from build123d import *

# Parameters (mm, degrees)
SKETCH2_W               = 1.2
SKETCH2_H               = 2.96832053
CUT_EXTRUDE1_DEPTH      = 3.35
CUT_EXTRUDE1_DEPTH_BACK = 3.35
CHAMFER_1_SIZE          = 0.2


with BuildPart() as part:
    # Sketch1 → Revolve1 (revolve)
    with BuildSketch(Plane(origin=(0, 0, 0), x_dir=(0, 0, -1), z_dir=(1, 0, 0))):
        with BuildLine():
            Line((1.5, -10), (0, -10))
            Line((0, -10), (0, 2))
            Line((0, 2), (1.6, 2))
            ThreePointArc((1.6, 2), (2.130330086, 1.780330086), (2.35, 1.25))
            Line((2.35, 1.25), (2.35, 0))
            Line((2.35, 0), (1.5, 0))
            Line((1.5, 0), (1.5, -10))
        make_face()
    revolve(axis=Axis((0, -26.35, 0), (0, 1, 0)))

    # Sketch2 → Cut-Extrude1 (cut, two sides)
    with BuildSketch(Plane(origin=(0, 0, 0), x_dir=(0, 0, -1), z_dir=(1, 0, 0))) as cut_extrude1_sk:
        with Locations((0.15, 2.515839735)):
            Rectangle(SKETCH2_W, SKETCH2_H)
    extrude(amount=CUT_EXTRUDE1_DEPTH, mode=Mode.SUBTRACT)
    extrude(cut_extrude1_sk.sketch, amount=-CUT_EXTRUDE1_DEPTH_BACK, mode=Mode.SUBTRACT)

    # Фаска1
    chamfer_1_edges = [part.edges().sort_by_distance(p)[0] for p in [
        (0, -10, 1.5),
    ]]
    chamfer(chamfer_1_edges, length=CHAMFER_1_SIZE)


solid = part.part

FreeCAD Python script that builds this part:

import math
import FreeCAD as App
import Part
import Sketcher

V = App.Vector
Q = App.Units.Quantity


def edges_at(feature, points):
    """Names of the edges that pass closest to the given points."""
    edges = feature.Shape.Edges
    near = lambda p: min(range(len(edges)), key=lambda i: edges[i].distToShape(Part.Vertex(*p))[0])
    return sorted({f"Edge{near(p) + 1}" for p in points})


def add_polygon(sketch, points):
    """Adds a closed chain of lines whose ends are joined by coincident constraints."""
    first, n = sketch.GeometryCount, len(points)
    for a, b in zip(points, points[1:] + points[:1]):
        sketch.addGeometry(Part.LineSegment(App.Vector(*a, 0), App.Vector(*b, 0)), False)
    for i in range(n):
        sketch.addConstraint(Sketcher.Constraint("Coincident", first + i, 2, first + (i + 1) % n, 1))

doc = App.newDocument("Part")
body = doc.addObject("PartDesign::Body", "Body")

# Sketch on YZ plane
sketch1 = body.newObject("Sketcher::SketchObject", "Sketch")
sketch1.AttachmentSupport = (doc.getObject("YZ_Plane"), [""])
sketch1.MapMode = "FlatFace"
sketch1.addGeometry([
    Part.LineSegment(V(-10, 0, 0), V(-10, -1.5, 0)),  # 0
    Part.LineSegment(V(-10, -1.5, 0), V(0, -1.5, 0)),  # 1
    Part.LineSegment(V(0, -1.5, 0), V(0, -2.35, 0)),  # 2
    Part.LineSegment(V(0, -2.35, 0), V(1.25, -2.35, 0)),  # 3
    Part.ArcOfCircle(Part.Circle(V(1.25, -1.6, 0), V(0, 0, 1), 0.75), math.radians(-90), math.radians(0)),  # 4
    Part.LineSegment(V(2, -1.6, 0), V(2, 0, 0)),  # 5
    Part.LineSegment(V(2, 0, 0), V(-10, 0, 0)),  # 6
], False)
sketch1.addConstraint([
    Sketcher.Constraint("Coincident", 0, 2, 1, 1),
    Sketcher.Constraint("Coincident", 1, 2, 2, 1),
    Sketcher.Constraint("Coincident", 2, 2, 3, 1),
    Sketcher.Constraint("Tangent", 3, 2, 4, 1),
    Sketcher.Constraint("Tangent", 4, 2, 5, 1),
    Sketcher.Constraint("Coincident", 5, 2, 6, 1),
    Sketcher.Constraint("Coincident", 6, 2, 0, 1),
    Sketcher.Constraint("Vertical", 0),
    Sketcher.Constraint("Horizontal", 1),
    Sketcher.Constraint("Vertical", 2),
    Sketcher.Constraint("Horizontal", 3),
    Sketcher.Constraint("Vertical", 5),
    Sketcher.Constraint("Horizontal", 6),
    Sketcher.Constraint("PointOnObject", 1, 2, -2),
    Sketcher.Constraint("PointOnObject", 5, 2, -1),
    Sketcher.Constraint("DistanceX", 1, 1, 1, 2, Q("10 mm")),
    Sketcher.Constraint("DistanceX", 6, 2, 6, 1, Q("12 mm")),
    Sketcher.Constraint("Radius", 4, Q("0.75 mm")),
    Sketcher.Constraint("DistanceY", 0, 2, 0, 1, Q("1.5 mm")),
    Sketcher.Constraint("DistanceY", 5, 1, 5, 2, Q("1.6 mm")),
])
revolution = body.newObject("PartDesign::Revolution", "Revolution")
revolution.Profile = sketch1
revolution.ReferenceAxis = (sketch1, ["H_Axis"])
revolution.Angle = 360

# Sketch on YZ plane
sketch2 = body.newObject("Sketcher::SketchObject", "Sketch001")
sketch2.AttachmentSupport = (doc.getObject("YZ_Plane"), [""])
sketch2.MapMode = "FlatFace"
add_polygon(sketch2, [(4, 0.45), (1.031679, 0.45), (1.031679, -0.75), (4, -0.75)])  # lines 0-3
sketch2.addConstraint([
    Sketcher.Constraint("Horizontal", 0),
    Sketcher.Constraint("Vertical", 1),
    Sketcher.Constraint("Horizontal", 2),
    Sketcher.Constraint("Vertical", 3),
    Sketcher.Constraint("DistanceY", 1, 2, 1, 1, Q("1.2 mm")),
    Sketcher.Constraint("DistanceX", -1, 1, 2, 2, Q("4 mm")),
    Sketcher.Constraint("DistanceY", -1, 1, 0, 2, Q("0.45 mm")),
    Sketcher.Constraint("DistanceX", 0, 2, 0, 1, Q("2.968321 mm")),
])
pocket1 = body.newObject("PartDesign::Pocket", "Pocket")
pocket1.Profile = sketch2
pocket1.Type = "ThroughAll"
pocket1.Midplane = True
doc.recompute()

chamfer = body.newObject("PartDesign::Chamfer", "Chamfer")
chamfer.Base = (pocket1, edges_at(pocket1, [(0, -10, 1.5)]))
chamfer.Size = 0.2

doc.recompute()
